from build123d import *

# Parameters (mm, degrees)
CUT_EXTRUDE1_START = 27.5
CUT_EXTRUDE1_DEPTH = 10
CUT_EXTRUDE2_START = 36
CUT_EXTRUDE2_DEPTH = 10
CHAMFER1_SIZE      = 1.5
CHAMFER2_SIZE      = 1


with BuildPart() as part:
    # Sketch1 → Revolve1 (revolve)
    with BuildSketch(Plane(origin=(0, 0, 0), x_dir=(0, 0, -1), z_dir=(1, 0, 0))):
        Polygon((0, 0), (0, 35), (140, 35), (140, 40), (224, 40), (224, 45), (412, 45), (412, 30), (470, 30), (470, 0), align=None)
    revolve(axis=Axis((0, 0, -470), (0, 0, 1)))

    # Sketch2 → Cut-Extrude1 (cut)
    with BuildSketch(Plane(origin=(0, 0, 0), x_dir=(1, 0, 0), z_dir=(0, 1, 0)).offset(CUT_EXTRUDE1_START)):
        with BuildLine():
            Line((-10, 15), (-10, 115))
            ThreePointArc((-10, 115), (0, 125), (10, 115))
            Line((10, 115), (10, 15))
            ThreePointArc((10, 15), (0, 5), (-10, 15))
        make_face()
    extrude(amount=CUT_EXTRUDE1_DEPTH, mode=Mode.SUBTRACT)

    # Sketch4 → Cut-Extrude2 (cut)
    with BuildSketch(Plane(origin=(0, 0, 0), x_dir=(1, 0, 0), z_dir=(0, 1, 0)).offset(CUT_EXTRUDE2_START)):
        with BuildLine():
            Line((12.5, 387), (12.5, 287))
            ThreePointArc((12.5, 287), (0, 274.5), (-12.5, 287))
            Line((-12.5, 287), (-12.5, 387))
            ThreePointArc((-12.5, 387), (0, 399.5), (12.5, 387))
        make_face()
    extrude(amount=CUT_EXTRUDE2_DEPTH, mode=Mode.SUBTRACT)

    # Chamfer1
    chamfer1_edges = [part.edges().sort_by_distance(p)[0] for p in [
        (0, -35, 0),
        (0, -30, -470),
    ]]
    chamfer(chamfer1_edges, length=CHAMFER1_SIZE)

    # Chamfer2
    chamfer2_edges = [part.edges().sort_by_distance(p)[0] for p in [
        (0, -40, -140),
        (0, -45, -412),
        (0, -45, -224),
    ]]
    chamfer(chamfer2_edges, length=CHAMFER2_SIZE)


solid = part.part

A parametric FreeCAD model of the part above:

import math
import FreeCAD as App
import Part
import Sketcher

V = App.Vector
Q = App.Units.Quantity


def edges_at(feature, points):
    """Names of the edges that pass closest to the given points."""
    edges = feature.Shape.Edges
    near = lambda p: min(range(len(edges)), key=lambda i: edges[i].distToShape(Part.Vertex(*p))[0])
    return sorted({f"Edge{near(p) + 1}" for p in points})

doc = App.newDocument("Part")
body = doc.addObject("PartDesign::Body", "Body")

sketch1 = body.newObject("Sketcher::SketchObject", "Sketch")
sketch1.AttachmentSupport = (doc.getObject("YZ_Plane"), [""])
sketch1.MapMode = "FlatFace"
sketch1.addGeometry([
    Part.LineSegment(V(35, 0, 0), V(0, 0, 0)),
    Part.LineSegment(V(0, 0, 0), V(0, -470, 0)),
    Part.LineSegment(V(0, -470, 0), V(30, -470, 0)),
    Part.LineSegment(V(30, -470, 0), V(30, -412, 0)),
    Part.LineSegment(V(30, -412, 0), V(45, -412, 0)),
    Part.LineSegment(V(45, -412, 0), V(45, -224, 0)),
    Part.LineSegment(V(45, -224, 0), V(40, -224, 0)),
    Part.LineSegment(V(40, -224, 0), V(40, -140, 0)),
    Part.LineSegment(V(40, -140, 0), V(35, -140, 0)),
    Part.LineSegment(V(35, -140, 0), V(35, 0, 0)),
], False)
sketch1.addConstraint([
    Sketcher.Constraint("Coincident", 0, 2, 1, 1),
    Sketcher.Constraint("Coincident", 1, 2, 2, 1),
    Sketcher.Constraint("Coincident", 2, 2, 3, 1),
    Sketcher.Constraint("Coincident", 3, 2, 4, 1),
    Sketcher.Constraint("Coincident", 4, 2, 5, 1),
    Sketcher.Constraint("Coincident", 5, 2, 6, 1),
    Sketcher.Constraint("Coincident", 6, 2, 7, 1),
    Sketcher.Constraint("Coincident", 7, 2, 8, 1),
    Sketcher.Constraint("Coincident", 8, 2, 9, 1),
    Sketcher.Constraint("Coincident", 9, 2, 0, 1),
    Sketcher.Constraint("Horizontal", 0),
    Sketcher.Constraint("Vertical", 1),
    Sketcher.Constraint("Horizontal", 2),
    Sketcher.Constraint("Vertical", 3),
    Sketcher.Constraint("Horizontal", 4),
    Sketcher.Constraint("Vertical", 5),
    Sketcher.Constraint("Horizontal", 6),
    Sketcher.Constraint("Vertical", 7),
    Sketcher.Constraint("Horizontal", 8),
    Sketcher.Constraint("Vertical", 9),
    Sketcher.Constraint("Coincident", 0, 2, -1, 1),
    Sketcher.Constraint("Equal", 6, 8),
    Sketcher.Constraint("DistanceX", 0, 2, 0, 1, Q("35 mm")),
    Sketcher.Constraint("DistanceX", 2, 1, 2, 2, Q("30 mm")),
    Sketcher.Constraint("DistanceX", 4, 1, 4, 2, Q("15 mm")),
    Sketcher.Constraint("DistanceY", 1, 2, 1, 1, Q("470 mm")),
    Sketcher.Constraint("DistanceY", 3, 1, 3, 2, Q("58 mm")),
    Sketcher.Constraint("DistanceY", 5, 1, 5, 2, Q("188 mm")),
    Sketcher.Constraint("DistanceY", 7, 1, 7, 2, Q("84 mm")),
])
revolution = body.newObject("PartDesign::Revolution", "Revolution")
revolution.Profile = sketch1
revolution.ReferenceAxis = (sketch1, ["V_Axis"])
revolution.Angle = 360

sketch2 = body.newObject("Sketcher::SketchObject", "Sketch001")
sketch2.AttachmentSupport = (doc.getObject("XZ_Plane"), [""])
sketch2.MapMode = "FlatFace"
sketch2.AttachmentOffset = App.Placement(V(0, 0, -27.5), App.Rotation())
sketch2.addGeometry([
    Part.LineSegment(V(-10, -115, 0), V(-10, -15, 0)),
    Part.ArcOfCircle(Part.Circle(V(0, -15, 0), V(0, 0, 1), 10), math.radians(0), math.radians(180)),
    Part.LineSegment(V(10, -15, 0), V(10, -115, 0)),
    Part.ArcOfCircle(Part.Circle(V(0, -115, 0), V(0, 0, 1), 10), math.radians(180), math.radians(360)),
], False)
sketch2.addConstraint([
    Sketcher.Constraint("Tangent", 0, 2, 1, 2),
    Sketcher.Constraint("Tangent", 1, 1, 2, 1),
    Sketcher.Constraint("Tangent", 2, 2, 3, 2),
    Sketcher.Constraint("Tangent", 3, 1, 0, 1),
    Sketcher.Constraint("Vertical", 0),
    Sketcher.Constraint("Vertical", 2),
    Sketcher.Constraint("PointOnObject", 1, 3, -2),
    Sketcher.Constraint("Radius", 1, Q("10 mm")),
    Sketcher.Constraint("DistanceY", 0, 1, 0, 2, Q("100 mm")),
    Sketcher.Constraint("DistanceY", 1, 3, -1, 1, Q("15 mm")),
])
pocket1 = body.newObject("PartDesign::Pocket", "Pocket")
pocket1.Profile = sketch2
pocket1.Length = 10

sketch3 = body.newObject("Sketcher::SketchObject", "Sketch002")
sketch3.AttachmentSupport = (doc.getObject("XZ_Plane"), [""])
sketch3.MapMode = "FlatFace"
sketch3.AttachmentOffset = App.Placement(V(0, 0, -36), App.Rotation())
sketch3.addGeometry([
    Part.LineSegment(V(12, -287, 0), V(12, -387, 0)),
    Part.ArcOfCircle(Part.Circle(V(0, -387, 0), V(0, 0, 1), 12), math.radians(180), math.radians(360)),
    Part.LineSegment(V(-12, -387, 0), V(-12, -287, 0)),
    Part.ArcOfCircle(Part.Circle(V(0, -287, 0), V(0, 0, 1), 12), math.radians(0), math.radians(180)),
], False)
sketch3.addConstraint([
    Sketcher.Constraint("Tangent", 0, 2, 1, 2),
    Sketcher.Constraint("Tangent", 1, 1, 2, 1),
    Sketcher.Constraint("Tangent", 2, 2, 3, 2),
    Sketcher.Constraint("Tangent", 3, 1, 0, 1),
    Sketcher.Constraint("Vertical", 0),
    Sketcher.Constraint("Vertical", 2),
    Sketcher.Constraint("PointOnObject", 1, 3, -2),
    Sketcher.Constraint("Radius", 1, Q("12.5 mm")),
    Sketcher.Constraint("DistanceY", 0, 2, 0, 1, Q("100 mm")),
    Sketcher.Constraint("DistanceY", 1, 3, -1, 1, Q("387 mm")),
])
pocket2 = body.newObject("PartDesign::Pocket", "Pocket001")
pocket2.Profile = sketch3
pocket2.Length = 10
doc.recompute()

chamfer = body.newObject("PartDesign::Chamfer", "Chamfer")
chamfer.Base = (pocket2, edges_at(pocket2, [(0, -35, 0), (0, -30, -470)]))
chamfer.Size = 1.5
doc.recompute()

chamfer2 = body.newObject("PartDesign::Chamfer", "Chamfer001")
chamfer2.Base = (chamfer, edges_at(chamfer, [(0, -40, -140), (0, -45, -412), (0, -45, -224)]))
chamfer2.Size = 1

doc.recompute()
